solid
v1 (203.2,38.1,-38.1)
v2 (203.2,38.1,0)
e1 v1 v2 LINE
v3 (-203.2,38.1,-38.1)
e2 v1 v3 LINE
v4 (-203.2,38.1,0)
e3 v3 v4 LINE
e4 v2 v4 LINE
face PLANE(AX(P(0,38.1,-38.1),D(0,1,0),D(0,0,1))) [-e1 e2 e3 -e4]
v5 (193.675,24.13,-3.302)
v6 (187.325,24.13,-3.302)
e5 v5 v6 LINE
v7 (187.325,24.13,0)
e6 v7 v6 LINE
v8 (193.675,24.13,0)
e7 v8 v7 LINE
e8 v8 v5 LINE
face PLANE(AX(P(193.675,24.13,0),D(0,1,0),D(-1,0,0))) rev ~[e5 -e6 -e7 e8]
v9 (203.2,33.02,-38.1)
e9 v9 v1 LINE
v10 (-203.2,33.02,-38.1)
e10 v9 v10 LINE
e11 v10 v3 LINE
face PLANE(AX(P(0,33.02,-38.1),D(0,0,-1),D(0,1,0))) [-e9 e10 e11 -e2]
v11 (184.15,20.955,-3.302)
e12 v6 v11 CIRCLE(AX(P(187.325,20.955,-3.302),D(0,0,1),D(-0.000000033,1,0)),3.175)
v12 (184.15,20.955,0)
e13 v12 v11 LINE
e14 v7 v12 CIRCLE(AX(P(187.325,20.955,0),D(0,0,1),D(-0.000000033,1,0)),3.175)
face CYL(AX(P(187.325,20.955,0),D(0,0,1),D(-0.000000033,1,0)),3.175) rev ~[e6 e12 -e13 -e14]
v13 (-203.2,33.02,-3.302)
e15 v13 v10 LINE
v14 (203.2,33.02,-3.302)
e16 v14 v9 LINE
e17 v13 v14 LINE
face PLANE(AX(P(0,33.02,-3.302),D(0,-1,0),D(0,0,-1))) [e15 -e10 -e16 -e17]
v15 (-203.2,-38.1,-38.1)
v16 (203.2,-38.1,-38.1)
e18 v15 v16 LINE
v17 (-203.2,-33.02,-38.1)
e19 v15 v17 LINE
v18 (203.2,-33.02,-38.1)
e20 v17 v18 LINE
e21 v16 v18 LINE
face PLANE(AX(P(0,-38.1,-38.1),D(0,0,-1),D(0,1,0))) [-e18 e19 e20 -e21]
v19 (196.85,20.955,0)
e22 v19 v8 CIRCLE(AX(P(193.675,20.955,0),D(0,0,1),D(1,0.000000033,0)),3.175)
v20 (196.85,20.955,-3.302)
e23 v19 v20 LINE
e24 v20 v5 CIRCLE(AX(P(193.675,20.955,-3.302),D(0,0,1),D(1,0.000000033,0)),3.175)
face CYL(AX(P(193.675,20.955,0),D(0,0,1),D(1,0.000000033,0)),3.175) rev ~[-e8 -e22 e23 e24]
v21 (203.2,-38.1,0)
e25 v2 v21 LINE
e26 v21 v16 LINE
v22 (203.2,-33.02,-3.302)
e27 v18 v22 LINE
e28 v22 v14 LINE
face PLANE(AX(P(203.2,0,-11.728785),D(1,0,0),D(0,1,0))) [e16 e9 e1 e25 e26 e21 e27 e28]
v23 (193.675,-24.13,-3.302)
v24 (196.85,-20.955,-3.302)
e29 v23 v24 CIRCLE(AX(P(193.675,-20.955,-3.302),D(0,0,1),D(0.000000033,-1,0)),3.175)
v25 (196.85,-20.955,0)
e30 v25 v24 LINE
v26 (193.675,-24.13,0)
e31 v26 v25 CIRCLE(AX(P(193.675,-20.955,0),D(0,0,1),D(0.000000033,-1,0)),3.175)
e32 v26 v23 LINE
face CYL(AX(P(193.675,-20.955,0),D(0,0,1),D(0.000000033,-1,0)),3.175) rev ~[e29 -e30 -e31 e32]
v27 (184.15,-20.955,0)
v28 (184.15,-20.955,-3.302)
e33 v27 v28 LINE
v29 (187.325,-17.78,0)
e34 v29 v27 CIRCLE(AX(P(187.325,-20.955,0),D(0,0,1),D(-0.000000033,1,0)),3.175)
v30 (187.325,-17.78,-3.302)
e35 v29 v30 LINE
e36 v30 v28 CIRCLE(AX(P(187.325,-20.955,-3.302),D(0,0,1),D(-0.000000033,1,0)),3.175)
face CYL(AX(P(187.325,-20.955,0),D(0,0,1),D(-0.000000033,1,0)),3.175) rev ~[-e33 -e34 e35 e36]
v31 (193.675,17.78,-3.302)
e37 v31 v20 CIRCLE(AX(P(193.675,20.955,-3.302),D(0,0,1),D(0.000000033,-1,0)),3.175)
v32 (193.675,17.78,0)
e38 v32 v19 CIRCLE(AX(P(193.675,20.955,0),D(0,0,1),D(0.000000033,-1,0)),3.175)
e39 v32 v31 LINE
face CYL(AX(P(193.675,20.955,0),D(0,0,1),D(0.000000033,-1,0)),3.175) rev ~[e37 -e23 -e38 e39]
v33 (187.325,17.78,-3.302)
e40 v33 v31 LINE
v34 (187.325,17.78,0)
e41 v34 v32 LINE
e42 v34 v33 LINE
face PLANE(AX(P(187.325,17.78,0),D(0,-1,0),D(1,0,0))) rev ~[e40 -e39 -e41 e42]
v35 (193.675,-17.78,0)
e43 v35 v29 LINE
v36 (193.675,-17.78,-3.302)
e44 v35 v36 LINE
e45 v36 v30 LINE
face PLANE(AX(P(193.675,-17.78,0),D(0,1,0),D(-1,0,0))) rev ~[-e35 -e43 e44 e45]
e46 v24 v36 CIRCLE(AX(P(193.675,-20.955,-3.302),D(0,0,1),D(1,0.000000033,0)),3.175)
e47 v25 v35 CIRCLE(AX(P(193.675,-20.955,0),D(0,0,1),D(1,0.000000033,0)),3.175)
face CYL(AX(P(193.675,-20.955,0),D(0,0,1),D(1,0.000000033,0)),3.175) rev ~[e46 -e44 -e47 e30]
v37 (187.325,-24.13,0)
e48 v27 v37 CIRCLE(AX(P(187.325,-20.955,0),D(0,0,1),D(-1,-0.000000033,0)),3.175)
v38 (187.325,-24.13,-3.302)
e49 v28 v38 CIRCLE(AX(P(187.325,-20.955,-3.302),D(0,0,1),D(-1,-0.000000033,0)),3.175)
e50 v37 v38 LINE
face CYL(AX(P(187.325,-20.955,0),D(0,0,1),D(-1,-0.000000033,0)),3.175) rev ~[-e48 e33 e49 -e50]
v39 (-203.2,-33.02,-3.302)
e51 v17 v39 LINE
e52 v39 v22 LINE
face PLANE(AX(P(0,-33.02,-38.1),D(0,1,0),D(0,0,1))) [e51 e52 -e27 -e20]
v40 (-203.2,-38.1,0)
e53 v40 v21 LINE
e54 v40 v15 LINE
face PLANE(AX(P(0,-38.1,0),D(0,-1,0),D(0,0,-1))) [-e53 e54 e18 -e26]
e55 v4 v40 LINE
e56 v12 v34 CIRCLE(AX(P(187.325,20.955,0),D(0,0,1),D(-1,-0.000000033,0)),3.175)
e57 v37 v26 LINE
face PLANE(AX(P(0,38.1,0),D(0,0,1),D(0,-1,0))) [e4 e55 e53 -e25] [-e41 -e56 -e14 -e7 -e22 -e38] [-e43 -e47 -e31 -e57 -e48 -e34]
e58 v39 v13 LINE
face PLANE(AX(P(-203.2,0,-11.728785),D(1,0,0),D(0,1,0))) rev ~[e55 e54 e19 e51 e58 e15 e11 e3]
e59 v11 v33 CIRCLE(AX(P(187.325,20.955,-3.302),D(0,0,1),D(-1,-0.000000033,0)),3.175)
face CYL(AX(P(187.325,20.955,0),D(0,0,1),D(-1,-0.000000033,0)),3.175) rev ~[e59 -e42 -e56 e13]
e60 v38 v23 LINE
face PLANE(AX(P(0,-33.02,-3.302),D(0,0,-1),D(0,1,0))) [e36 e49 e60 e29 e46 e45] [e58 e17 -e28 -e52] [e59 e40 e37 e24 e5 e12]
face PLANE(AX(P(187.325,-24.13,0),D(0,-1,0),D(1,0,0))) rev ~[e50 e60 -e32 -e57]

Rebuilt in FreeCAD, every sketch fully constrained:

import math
import FreeCAD as App
import Part
import Sketcher

V = App.Vector
Q = App.Units.Quantity

doc = App.newDocument("Part")
params = doc.addObject("Spreadsheet::Sheet", "Params")
for row, (alias, value) in enumerate([
    ("sketch1_width", "3 in"),
    ("sketch1_width2", "0.2 in"),
    ("sketch1_height", "1.5 in"),
    ("sketch1_height2", "1.37 in"),
    ("pad1_length", "16 in"),
    ("sketch2_radius", "0.125 in"),
    ("sketch2_width", "0.25 in"),
], start=1):
    params.set(f"A{row}", alias)
    params.set(f"B{row}", "=" + value)
    params.setAlias(f"B{row}", alias)

body = doc.addObject("PartDesign::Body", "Body")

# Sketch on YZ plane
sketch1 = body.newObject("Sketcher::SketchObject", "Sketch")
sketch1.AttachmentSupport = (doc.getObject("YZ_Plane"), [""])
sketch1.MapMode = "FlatFace"
sketch1.addGeometry([
    Part.LineSegment(V(38, 0, 0), V(-38, 0, 0)),  # 0
    Part.LineSegment(V(-38, 0, 0), V(-38, -38, 0)),  # 1
    Part.LineSegment(V(-38, -38, 0), V(-33, -38, 0)),  # 2
    Part.LineSegment(V(-33, -38, 0), V(-33, -3, 0)),  # 3
    Part.LineSegment(V(-33, -3, 0), V(33, -3, 0)),  # 4
    Part.LineSegment(V(33, -3, 0), V(33, -38, 0)),  # 5
    Part.LineSegment(V(33, -38, 0), V(38, -38, 0)),  # 6
    Part.LineSegment(V(38, -38, 0), V(38, 0, 0)),  # 7
], False)
sketch1.addConstraint([
    Sketcher.Constraint("Coincident", 0, 2, 1, 1),
    Sketcher.Constraint("Coincident", 1, 2, 2, 1),
    Sketcher.Constraint("Coincident", 2, 2, 3, 1),
    Sketcher.Constraint("Coincident", 3, 2, 4, 1),
    Sketcher.Constraint("Coincident", 4, 2, 5, 1),
    Sketcher.Constraint("Coincident", 5, 2, 6, 1),
    Sketcher.Constraint("Coincident", 6, 2, 7, 1),
    Sketcher.Constraint("Coincident", 7, 2, 0, 1),
    Sketcher.Constraint("Horizontal", 0),
    Sketcher.Constraint("Vertical", 1),
    Sketcher.Constraint("Horizontal", 2),
    Sketcher.Constraint("Vertical", 3),
    Sketcher.Constraint("Horizontal", 4),
    Sketcher.Constraint("Vertical", 5),
    Sketcher.Constraint("Horizontal", 6),
    Sketcher.Constraint("Vertical", 7),
    Sketcher.Constraint("Symmetric", 0, 2, 7, 2, -1, 1),
    Sketcher.Constraint("Symmetric", 2, 2, 5, 2, -2),
    Sketcher.Constraint("DistanceX", 0, 2, 0, 1, Q("3 in")),
    Sketcher.Constraint("DistanceX", 2, 1, 2, 2, Q("0.2 in")),
    Sketcher.Constraint("DistanceY", 1, 2, 1, 1, Q("1.5 in")),
    Sketcher.Constraint("DistanceY", 3, 1, 3, 2, Q("1.37 in")),
])
sketch1.setExpression("Constraints[18]", "Params.sketch1_width")
sketch1.setExpression("Constraints[19]", "Params.sketch1_width2")
sketch1.setExpression("Constraints[20]", "Params.sketch1_height")
sketch1.setExpression("Constraints[21]", "Params.sketch1_height2")
pad1 = body.newObject("PartDesign::Pad", "Pad")
pad1.Profile = sketch1
pad1.setExpression("Length", "Params.pad1_length")
pad1.Midplane = True

# Sketch on XY plane
sketch2 = body.newObject("Sketcher::SketchObject", "Sketch001")
sketch2.AttachmentSupport = (doc.getObject("XY_Plane"), [""])
sketch2.MapMode = "FlatFace"
sketch2.addGeometry([
    Part.LineSegment(V(187.3, 17.8, 0), V(193.7, 17.8, 0)),  # 0
    Part.ArcOfCircle(Part.Circle(V(193.7, 21, 0), V(0, 0, 1), 3.2), math.radians(-90), math.radians(0)),  # 1
    Part.ArcOfCircle(Part.Circle(V(193.7, 21, 0), V(0, 0, 1), 3.2), math.radians(0), math.radians(90)),  # 2
    Part.LineSegment(V(193.7, 24.1, 0), V(187.3, 24.1, 0)),  # 3
    Part.ArcOfCircle(Part.Circle(V(187.3, 21, 0), V(0, 0, 1), 3.2), math.radians(90), math.radians(180)),  # 4
    Part.ArcOfCircle(Part.Circle(V(187.3, 21, 0), V(0, 0, 1), 3.2), math.radians(-180), math.radians(-90)),  # 5
    Part.ArcOfCircle(Part.Circle(V(193.7, -21, 0), V(0, 0, 1), 3.2), math.radians(0), math.radians(90)),  # 6
    Part.LineSegment(V(193.7, -17.8, 0), V(187.3, -17.8, 0)),  # 7
    Part.ArcOfCircle(Part.Circle(V(187.3, -21, 0), V(0, 0, 1), 3.2), math.radians(90), math.radians(180)),  # 8
    Part.ArcOfCircle(Part.Circle(V(187.3, -21, 0), V(0, 0, 1), 3.2), math.radians(-180), math.radians(-90)),  # 9
    Part.LineSegment(V(187.3, -24.1, 0), V(193.7, -24.1, 0)),  # 10
    Part.ArcOfCircle(Part.Circle(V(193.7, -21, 0), V(0, 0, 1), 3.2), math.radians(-90), math.radians(0)),  # 11
], False)
sketch2.addConstraint([
    Sketcher.Constraint("Tangent", 0, 2, 1, 1),
    Sketcher.Constraint("Tangent", 1, 2, 2, 1),
    Sketcher.Constraint("Tangent", 2, 2, 3, 1),
    Sketcher.Constraint("Tangent", 3, 2, 4, 1),
    Sketcher.Constraint("Tangent", 4, 2, 5, 1),
    Sketcher.Constraint("Tangent", 5, 2, 0, 1),
    Sketcher.Constraint("Tangent", 6, 2, 7, 1),
    Sketcher.Constraint("Tangent", 7, 2, 8, 1),
    Sketcher.Constraint("Tangent", 8, 2, 9, 1),
    Sketcher.Constraint("Tangent", 9, 2, 10, 1),
    Sketcher.Constraint("Tangent", 10, 2, 11, 1),
    Sketcher.Constraint("Tangent", 11, 2, 6, 1),
    Sketcher.Constraint("Horizontal", 0),
    Sketcher.Constraint("Horizontal", 3),
    Sketcher.Constraint("Horizontal", 7),
    Sketcher.Constraint("Horizontal", 10),
    Sketcher.Constraint("Equal", 1, 2),
    Sketcher.Constraint("Equal", 2, 4),
    Sketcher.Constraint("Equal", 5, 6),
    Sketcher.Constraint("Equal", 6, 8),
    Sketcher.Constraint("Equal", 8, 9),
    Sketcher.Constraint("Symmetric", 1, 3, 6, 3, -1),
    Sketcher.Constraint("Symmetric", 4, 2, 8, 2, -1),
    Sketcher.Constraint("Horizontal", 5, 3, 1, 2),
    Sketcher.Constraint("Horizontal", 1, 2, 4, 2),
    Sketcher.Constraint("Horizontal", 8, 2, 11, 2),
    Sketcher.Constraint("Radius", 1, Q("0.125 in")),
    Sketcher.Constraint("DistanceX", 0, 1, 0, 2, Q("0.25 in")),
    Sketcher.Constraint("DistanceY", -1, 1, 0, 2, Q("0.7 in")),
    Sketcher.Constraint("DistanceX", -1, 1, 1, 2, Q("7.75 in")),
])
sketch2.setExpression("Constraints[26]", "Params.sketch2_radius")
sketch2.setExpression("Constraints[27]", "Params.sketch2_width")
pocket1 = body.newObject("PartDesign::Pocket", "Pocket")
pocket1.Profile = sketch2
pocket1.Type = "ThroughAll"

doc.recompute()
